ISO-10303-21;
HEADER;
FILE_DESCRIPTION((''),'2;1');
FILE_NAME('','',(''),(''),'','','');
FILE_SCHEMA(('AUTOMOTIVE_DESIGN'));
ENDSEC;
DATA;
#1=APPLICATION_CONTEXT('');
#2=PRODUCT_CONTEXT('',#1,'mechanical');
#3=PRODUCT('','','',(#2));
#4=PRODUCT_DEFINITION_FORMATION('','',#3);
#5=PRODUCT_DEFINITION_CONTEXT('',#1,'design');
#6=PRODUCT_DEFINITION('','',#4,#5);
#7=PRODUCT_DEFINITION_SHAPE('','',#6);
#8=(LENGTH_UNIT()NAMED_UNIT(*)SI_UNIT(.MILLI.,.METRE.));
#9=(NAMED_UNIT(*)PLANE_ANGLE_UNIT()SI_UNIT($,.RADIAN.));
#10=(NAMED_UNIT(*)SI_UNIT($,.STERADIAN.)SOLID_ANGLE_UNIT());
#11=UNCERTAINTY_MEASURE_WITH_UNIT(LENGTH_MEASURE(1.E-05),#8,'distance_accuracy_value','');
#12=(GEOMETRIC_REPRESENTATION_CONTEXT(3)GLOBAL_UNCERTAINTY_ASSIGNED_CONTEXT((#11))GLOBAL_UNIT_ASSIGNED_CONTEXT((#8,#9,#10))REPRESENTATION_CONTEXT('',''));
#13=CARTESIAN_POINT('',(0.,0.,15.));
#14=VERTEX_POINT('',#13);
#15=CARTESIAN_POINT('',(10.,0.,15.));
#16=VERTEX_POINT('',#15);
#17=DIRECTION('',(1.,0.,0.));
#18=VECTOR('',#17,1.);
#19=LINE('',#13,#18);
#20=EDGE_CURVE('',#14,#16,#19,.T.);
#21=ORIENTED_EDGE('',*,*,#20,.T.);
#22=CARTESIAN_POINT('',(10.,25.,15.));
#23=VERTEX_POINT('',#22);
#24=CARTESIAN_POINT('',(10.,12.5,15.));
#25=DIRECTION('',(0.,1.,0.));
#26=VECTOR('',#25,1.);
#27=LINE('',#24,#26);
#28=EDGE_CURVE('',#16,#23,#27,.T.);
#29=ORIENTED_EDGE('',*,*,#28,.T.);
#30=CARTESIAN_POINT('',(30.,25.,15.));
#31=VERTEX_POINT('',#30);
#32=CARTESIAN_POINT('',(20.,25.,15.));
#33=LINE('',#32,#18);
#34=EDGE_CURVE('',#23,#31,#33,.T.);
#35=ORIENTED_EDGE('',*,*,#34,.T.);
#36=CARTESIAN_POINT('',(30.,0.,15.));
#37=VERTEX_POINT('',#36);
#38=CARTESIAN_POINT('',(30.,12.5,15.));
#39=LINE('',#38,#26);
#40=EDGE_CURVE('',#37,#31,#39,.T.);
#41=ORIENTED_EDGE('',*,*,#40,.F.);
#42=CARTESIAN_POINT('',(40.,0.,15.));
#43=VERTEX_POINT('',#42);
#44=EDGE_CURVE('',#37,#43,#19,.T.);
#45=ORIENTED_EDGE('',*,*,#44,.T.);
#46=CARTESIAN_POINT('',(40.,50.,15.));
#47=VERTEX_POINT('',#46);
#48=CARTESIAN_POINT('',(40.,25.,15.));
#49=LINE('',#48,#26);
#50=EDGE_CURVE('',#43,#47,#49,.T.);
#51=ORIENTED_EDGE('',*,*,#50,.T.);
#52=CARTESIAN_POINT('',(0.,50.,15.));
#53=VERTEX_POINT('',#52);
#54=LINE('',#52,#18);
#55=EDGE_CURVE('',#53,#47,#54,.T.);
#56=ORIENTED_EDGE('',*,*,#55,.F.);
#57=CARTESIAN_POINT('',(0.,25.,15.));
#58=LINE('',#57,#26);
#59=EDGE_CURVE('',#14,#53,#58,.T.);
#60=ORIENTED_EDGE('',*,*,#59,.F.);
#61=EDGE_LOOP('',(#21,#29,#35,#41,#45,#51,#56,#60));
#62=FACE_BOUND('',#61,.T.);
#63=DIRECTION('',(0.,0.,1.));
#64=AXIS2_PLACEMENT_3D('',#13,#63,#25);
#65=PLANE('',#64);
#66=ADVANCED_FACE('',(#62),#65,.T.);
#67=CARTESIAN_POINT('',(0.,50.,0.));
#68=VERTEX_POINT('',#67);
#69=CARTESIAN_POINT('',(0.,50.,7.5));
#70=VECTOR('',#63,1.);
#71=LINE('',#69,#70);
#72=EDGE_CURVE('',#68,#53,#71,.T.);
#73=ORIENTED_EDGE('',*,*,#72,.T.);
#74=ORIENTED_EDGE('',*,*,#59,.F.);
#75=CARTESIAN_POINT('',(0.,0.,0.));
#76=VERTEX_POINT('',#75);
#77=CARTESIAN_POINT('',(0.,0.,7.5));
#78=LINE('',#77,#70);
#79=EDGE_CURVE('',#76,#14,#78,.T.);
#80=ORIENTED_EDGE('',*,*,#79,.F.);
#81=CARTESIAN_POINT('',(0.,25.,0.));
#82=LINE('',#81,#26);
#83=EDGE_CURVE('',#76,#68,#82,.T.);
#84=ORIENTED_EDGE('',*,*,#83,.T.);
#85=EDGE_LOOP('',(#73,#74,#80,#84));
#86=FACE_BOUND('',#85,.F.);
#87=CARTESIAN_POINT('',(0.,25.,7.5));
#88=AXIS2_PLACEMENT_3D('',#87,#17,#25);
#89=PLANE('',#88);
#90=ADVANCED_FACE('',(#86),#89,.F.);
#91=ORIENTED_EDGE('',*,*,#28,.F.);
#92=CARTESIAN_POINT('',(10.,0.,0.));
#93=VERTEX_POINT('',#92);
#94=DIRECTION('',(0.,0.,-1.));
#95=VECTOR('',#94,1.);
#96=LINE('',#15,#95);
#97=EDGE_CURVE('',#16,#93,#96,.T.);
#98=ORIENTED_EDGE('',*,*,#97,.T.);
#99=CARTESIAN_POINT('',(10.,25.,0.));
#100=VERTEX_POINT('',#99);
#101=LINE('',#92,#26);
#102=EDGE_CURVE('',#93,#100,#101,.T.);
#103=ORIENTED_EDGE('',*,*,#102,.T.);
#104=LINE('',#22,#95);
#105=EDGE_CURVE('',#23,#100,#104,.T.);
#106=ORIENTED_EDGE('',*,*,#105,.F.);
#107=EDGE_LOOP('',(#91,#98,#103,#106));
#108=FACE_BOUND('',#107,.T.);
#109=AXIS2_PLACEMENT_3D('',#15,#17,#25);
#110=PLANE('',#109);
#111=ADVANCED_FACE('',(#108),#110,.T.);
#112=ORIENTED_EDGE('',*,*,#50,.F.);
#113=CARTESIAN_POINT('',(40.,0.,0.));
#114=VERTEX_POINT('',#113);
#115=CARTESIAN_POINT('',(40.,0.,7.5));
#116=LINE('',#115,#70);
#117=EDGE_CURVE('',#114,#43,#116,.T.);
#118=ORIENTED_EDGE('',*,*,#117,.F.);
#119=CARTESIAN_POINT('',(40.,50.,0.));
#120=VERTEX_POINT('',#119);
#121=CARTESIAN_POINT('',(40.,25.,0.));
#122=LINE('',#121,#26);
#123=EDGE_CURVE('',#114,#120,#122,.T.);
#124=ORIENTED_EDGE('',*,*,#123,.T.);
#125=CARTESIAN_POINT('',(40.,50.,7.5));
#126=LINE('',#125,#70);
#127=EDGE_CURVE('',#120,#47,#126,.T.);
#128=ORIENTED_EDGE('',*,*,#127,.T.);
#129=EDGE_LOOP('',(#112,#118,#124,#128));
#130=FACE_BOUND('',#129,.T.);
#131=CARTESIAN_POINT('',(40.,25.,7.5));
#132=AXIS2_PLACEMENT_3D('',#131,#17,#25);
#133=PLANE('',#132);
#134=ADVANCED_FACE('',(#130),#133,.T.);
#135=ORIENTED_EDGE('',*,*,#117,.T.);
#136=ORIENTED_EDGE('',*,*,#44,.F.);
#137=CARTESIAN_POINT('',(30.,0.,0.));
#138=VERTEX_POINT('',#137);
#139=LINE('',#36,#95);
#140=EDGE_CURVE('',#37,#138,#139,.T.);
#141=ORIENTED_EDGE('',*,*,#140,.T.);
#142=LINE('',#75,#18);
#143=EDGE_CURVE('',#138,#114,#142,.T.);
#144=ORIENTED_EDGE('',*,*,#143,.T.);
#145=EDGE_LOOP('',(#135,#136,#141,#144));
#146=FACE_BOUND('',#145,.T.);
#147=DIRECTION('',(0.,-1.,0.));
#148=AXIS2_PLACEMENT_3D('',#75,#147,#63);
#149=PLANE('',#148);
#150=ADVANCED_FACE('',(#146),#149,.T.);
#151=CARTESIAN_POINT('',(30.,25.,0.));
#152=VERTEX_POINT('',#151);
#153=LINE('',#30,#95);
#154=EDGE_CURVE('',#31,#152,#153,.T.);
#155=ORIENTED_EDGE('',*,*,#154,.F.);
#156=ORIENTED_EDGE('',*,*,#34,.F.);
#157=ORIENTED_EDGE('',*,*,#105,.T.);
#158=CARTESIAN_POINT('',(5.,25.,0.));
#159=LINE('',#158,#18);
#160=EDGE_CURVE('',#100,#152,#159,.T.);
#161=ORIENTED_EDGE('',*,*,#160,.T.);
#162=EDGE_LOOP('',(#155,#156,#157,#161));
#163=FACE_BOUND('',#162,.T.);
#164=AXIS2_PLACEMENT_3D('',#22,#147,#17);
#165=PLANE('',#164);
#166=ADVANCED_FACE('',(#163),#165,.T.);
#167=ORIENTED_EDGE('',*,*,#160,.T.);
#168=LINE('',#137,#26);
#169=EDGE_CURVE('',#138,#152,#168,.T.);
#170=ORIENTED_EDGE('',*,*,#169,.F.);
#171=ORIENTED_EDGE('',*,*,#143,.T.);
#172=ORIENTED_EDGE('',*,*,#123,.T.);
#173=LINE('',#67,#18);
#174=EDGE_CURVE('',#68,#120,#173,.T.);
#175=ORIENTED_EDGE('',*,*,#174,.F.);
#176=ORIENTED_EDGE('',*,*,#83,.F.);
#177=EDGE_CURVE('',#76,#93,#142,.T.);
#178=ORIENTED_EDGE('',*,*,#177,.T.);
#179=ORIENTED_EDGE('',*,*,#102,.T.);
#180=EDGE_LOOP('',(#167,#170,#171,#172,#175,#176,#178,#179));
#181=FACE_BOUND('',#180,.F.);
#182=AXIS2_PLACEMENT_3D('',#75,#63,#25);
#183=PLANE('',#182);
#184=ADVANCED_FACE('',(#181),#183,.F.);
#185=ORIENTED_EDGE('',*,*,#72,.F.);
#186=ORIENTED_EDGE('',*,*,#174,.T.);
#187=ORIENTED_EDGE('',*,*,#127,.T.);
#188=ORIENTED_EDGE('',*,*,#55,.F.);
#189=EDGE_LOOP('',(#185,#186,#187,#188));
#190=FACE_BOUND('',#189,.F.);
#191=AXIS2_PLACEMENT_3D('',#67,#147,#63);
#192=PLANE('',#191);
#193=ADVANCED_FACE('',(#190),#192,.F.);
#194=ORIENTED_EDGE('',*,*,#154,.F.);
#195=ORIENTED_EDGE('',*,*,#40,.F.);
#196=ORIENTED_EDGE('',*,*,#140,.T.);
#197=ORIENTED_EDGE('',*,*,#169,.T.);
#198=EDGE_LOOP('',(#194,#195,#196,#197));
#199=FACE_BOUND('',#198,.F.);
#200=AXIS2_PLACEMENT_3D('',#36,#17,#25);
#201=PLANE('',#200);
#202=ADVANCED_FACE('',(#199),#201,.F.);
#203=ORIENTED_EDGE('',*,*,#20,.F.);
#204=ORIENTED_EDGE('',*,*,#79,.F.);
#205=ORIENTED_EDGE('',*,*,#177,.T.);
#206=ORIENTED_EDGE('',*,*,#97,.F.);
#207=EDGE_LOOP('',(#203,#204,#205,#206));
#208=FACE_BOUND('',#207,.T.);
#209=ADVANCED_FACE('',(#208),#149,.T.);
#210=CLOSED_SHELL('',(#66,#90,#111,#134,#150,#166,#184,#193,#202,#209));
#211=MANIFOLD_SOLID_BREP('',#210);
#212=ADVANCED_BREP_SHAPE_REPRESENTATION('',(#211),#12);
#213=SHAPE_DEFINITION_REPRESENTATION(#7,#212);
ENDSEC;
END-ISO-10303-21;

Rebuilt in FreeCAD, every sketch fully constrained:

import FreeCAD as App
import Part
import Sketcher

V = App.Vector
Q = App.Units.Quantity

doc = App.newDocument("Part")
body = doc.addObject("PartDesign::Body", "Body")

# Sketch on YZ plane
sketch1 = body.newObject("Sketcher::SketchObject", "Sketch")
sketch1.AttachmentSupport = (doc.getObject("YZ_Plane"), [""])
sketch1.MapMode = "FlatFace"
sketch1.addGeometry([
    Part.LineSegment(V(0, 15, 0), V(0, 0, 0)),
    Part.LineSegment(V(0, 0, 0), V(50, 0, 0)),
    Part.LineSegment(V(50, 0, 0), V(50, 15, 0)),
    Part.LineSegment(V(50, 15, 0), V(0, 15, 0)),
], False)
sketch1.addConstraint([
    Sketcher.Constraint("Coincident", 0, 2, 1, 1),
    Sketcher.Constraint("Coincident", 1, 2, 2, 1),
    Sketcher.Constraint("Coincident", 2, 2, 3, 1),
    Sketcher.Constraint("Coincident", 3, 2, 0, 1),
    Sketcher.Constraint("Vertical", 0),
    Sketcher.Constraint("Horizontal", 1),
    Sketcher.Constraint("Vertical", 2),
    Sketcher.Constraint("Horizontal", 3),
    Sketcher.Constraint("Coincident", 0, 2, -1, 1),
    Sketcher.Constraint("DistanceX", 1, 1, 1, 2, Q("50 mm")),
    Sketcher.Constraint("DistanceY", 0, 2, 0, 1, Q("15 mm")),
])
pad1 = body.newObject("PartDesign::Pad", "Pad")
pad1.Profile = sketch1
pad1.Length = 40

# Sketch on XY plane
sketch2 = body.newObject("Sketcher::SketchObject", "Sketch001")
sketch2.AttachmentSupport = (doc.getObject("XY_Plane"), [""])
sketch2.MapMode = "FlatFace"
sketch2.AttachmentOffset = App.Placement(V(0, 0, 15), App.Rotation())
sketch2.addGeometry([
    Part.LineSegment(V(10, 25, 0), V(10, 0, 0)),
    Part.LineSegment(V(10, 0, 0), V(30, 0, 0)),
    Part.LineSegment(V(30, 0, 0), V(30, 25, 0)),
    Part.LineSegment(V(30, 25, 0), V(10, 25, 0)),
], False)
sketch2.addConstraint([
    Sketcher.Constraint("Coincident", 0, 2, 1, 1),
    Sketcher.Constraint("Coincident", 1, 2, 2, 1),
    Sketcher.Constraint("Coincident", 2, 2, 3, 1),
    Sketcher.Constraint("Coincident", 3, 2, 0, 1),
    Sketcher.Constraint("Vertical", 0),
    Sketcher.Constraint("Horizontal", 1),
    Sketcher.Constraint("Vertical", 2),
    Sketcher.Constraint("Horizontal", 3),
    Sketcher.Constraint("PointOnObject", 0, 2, -1),
    Sketcher.Constraint("DistanceX", 1, 1, 1, 2, Q("20 mm")),
    Sketcher.Constraint("DistanceY", 0, 2, 0, 1, Q("25 mm")),
    Sketcher.Constraint("DistanceX", -1, 1, 0, 2, Q("10 mm")),
])
pocket1 = body.newObject("PartDesign::Pocket", "Pocket")
pocket1.Profile = sketch2
pocket1.Length = 25

doc.recompute()
